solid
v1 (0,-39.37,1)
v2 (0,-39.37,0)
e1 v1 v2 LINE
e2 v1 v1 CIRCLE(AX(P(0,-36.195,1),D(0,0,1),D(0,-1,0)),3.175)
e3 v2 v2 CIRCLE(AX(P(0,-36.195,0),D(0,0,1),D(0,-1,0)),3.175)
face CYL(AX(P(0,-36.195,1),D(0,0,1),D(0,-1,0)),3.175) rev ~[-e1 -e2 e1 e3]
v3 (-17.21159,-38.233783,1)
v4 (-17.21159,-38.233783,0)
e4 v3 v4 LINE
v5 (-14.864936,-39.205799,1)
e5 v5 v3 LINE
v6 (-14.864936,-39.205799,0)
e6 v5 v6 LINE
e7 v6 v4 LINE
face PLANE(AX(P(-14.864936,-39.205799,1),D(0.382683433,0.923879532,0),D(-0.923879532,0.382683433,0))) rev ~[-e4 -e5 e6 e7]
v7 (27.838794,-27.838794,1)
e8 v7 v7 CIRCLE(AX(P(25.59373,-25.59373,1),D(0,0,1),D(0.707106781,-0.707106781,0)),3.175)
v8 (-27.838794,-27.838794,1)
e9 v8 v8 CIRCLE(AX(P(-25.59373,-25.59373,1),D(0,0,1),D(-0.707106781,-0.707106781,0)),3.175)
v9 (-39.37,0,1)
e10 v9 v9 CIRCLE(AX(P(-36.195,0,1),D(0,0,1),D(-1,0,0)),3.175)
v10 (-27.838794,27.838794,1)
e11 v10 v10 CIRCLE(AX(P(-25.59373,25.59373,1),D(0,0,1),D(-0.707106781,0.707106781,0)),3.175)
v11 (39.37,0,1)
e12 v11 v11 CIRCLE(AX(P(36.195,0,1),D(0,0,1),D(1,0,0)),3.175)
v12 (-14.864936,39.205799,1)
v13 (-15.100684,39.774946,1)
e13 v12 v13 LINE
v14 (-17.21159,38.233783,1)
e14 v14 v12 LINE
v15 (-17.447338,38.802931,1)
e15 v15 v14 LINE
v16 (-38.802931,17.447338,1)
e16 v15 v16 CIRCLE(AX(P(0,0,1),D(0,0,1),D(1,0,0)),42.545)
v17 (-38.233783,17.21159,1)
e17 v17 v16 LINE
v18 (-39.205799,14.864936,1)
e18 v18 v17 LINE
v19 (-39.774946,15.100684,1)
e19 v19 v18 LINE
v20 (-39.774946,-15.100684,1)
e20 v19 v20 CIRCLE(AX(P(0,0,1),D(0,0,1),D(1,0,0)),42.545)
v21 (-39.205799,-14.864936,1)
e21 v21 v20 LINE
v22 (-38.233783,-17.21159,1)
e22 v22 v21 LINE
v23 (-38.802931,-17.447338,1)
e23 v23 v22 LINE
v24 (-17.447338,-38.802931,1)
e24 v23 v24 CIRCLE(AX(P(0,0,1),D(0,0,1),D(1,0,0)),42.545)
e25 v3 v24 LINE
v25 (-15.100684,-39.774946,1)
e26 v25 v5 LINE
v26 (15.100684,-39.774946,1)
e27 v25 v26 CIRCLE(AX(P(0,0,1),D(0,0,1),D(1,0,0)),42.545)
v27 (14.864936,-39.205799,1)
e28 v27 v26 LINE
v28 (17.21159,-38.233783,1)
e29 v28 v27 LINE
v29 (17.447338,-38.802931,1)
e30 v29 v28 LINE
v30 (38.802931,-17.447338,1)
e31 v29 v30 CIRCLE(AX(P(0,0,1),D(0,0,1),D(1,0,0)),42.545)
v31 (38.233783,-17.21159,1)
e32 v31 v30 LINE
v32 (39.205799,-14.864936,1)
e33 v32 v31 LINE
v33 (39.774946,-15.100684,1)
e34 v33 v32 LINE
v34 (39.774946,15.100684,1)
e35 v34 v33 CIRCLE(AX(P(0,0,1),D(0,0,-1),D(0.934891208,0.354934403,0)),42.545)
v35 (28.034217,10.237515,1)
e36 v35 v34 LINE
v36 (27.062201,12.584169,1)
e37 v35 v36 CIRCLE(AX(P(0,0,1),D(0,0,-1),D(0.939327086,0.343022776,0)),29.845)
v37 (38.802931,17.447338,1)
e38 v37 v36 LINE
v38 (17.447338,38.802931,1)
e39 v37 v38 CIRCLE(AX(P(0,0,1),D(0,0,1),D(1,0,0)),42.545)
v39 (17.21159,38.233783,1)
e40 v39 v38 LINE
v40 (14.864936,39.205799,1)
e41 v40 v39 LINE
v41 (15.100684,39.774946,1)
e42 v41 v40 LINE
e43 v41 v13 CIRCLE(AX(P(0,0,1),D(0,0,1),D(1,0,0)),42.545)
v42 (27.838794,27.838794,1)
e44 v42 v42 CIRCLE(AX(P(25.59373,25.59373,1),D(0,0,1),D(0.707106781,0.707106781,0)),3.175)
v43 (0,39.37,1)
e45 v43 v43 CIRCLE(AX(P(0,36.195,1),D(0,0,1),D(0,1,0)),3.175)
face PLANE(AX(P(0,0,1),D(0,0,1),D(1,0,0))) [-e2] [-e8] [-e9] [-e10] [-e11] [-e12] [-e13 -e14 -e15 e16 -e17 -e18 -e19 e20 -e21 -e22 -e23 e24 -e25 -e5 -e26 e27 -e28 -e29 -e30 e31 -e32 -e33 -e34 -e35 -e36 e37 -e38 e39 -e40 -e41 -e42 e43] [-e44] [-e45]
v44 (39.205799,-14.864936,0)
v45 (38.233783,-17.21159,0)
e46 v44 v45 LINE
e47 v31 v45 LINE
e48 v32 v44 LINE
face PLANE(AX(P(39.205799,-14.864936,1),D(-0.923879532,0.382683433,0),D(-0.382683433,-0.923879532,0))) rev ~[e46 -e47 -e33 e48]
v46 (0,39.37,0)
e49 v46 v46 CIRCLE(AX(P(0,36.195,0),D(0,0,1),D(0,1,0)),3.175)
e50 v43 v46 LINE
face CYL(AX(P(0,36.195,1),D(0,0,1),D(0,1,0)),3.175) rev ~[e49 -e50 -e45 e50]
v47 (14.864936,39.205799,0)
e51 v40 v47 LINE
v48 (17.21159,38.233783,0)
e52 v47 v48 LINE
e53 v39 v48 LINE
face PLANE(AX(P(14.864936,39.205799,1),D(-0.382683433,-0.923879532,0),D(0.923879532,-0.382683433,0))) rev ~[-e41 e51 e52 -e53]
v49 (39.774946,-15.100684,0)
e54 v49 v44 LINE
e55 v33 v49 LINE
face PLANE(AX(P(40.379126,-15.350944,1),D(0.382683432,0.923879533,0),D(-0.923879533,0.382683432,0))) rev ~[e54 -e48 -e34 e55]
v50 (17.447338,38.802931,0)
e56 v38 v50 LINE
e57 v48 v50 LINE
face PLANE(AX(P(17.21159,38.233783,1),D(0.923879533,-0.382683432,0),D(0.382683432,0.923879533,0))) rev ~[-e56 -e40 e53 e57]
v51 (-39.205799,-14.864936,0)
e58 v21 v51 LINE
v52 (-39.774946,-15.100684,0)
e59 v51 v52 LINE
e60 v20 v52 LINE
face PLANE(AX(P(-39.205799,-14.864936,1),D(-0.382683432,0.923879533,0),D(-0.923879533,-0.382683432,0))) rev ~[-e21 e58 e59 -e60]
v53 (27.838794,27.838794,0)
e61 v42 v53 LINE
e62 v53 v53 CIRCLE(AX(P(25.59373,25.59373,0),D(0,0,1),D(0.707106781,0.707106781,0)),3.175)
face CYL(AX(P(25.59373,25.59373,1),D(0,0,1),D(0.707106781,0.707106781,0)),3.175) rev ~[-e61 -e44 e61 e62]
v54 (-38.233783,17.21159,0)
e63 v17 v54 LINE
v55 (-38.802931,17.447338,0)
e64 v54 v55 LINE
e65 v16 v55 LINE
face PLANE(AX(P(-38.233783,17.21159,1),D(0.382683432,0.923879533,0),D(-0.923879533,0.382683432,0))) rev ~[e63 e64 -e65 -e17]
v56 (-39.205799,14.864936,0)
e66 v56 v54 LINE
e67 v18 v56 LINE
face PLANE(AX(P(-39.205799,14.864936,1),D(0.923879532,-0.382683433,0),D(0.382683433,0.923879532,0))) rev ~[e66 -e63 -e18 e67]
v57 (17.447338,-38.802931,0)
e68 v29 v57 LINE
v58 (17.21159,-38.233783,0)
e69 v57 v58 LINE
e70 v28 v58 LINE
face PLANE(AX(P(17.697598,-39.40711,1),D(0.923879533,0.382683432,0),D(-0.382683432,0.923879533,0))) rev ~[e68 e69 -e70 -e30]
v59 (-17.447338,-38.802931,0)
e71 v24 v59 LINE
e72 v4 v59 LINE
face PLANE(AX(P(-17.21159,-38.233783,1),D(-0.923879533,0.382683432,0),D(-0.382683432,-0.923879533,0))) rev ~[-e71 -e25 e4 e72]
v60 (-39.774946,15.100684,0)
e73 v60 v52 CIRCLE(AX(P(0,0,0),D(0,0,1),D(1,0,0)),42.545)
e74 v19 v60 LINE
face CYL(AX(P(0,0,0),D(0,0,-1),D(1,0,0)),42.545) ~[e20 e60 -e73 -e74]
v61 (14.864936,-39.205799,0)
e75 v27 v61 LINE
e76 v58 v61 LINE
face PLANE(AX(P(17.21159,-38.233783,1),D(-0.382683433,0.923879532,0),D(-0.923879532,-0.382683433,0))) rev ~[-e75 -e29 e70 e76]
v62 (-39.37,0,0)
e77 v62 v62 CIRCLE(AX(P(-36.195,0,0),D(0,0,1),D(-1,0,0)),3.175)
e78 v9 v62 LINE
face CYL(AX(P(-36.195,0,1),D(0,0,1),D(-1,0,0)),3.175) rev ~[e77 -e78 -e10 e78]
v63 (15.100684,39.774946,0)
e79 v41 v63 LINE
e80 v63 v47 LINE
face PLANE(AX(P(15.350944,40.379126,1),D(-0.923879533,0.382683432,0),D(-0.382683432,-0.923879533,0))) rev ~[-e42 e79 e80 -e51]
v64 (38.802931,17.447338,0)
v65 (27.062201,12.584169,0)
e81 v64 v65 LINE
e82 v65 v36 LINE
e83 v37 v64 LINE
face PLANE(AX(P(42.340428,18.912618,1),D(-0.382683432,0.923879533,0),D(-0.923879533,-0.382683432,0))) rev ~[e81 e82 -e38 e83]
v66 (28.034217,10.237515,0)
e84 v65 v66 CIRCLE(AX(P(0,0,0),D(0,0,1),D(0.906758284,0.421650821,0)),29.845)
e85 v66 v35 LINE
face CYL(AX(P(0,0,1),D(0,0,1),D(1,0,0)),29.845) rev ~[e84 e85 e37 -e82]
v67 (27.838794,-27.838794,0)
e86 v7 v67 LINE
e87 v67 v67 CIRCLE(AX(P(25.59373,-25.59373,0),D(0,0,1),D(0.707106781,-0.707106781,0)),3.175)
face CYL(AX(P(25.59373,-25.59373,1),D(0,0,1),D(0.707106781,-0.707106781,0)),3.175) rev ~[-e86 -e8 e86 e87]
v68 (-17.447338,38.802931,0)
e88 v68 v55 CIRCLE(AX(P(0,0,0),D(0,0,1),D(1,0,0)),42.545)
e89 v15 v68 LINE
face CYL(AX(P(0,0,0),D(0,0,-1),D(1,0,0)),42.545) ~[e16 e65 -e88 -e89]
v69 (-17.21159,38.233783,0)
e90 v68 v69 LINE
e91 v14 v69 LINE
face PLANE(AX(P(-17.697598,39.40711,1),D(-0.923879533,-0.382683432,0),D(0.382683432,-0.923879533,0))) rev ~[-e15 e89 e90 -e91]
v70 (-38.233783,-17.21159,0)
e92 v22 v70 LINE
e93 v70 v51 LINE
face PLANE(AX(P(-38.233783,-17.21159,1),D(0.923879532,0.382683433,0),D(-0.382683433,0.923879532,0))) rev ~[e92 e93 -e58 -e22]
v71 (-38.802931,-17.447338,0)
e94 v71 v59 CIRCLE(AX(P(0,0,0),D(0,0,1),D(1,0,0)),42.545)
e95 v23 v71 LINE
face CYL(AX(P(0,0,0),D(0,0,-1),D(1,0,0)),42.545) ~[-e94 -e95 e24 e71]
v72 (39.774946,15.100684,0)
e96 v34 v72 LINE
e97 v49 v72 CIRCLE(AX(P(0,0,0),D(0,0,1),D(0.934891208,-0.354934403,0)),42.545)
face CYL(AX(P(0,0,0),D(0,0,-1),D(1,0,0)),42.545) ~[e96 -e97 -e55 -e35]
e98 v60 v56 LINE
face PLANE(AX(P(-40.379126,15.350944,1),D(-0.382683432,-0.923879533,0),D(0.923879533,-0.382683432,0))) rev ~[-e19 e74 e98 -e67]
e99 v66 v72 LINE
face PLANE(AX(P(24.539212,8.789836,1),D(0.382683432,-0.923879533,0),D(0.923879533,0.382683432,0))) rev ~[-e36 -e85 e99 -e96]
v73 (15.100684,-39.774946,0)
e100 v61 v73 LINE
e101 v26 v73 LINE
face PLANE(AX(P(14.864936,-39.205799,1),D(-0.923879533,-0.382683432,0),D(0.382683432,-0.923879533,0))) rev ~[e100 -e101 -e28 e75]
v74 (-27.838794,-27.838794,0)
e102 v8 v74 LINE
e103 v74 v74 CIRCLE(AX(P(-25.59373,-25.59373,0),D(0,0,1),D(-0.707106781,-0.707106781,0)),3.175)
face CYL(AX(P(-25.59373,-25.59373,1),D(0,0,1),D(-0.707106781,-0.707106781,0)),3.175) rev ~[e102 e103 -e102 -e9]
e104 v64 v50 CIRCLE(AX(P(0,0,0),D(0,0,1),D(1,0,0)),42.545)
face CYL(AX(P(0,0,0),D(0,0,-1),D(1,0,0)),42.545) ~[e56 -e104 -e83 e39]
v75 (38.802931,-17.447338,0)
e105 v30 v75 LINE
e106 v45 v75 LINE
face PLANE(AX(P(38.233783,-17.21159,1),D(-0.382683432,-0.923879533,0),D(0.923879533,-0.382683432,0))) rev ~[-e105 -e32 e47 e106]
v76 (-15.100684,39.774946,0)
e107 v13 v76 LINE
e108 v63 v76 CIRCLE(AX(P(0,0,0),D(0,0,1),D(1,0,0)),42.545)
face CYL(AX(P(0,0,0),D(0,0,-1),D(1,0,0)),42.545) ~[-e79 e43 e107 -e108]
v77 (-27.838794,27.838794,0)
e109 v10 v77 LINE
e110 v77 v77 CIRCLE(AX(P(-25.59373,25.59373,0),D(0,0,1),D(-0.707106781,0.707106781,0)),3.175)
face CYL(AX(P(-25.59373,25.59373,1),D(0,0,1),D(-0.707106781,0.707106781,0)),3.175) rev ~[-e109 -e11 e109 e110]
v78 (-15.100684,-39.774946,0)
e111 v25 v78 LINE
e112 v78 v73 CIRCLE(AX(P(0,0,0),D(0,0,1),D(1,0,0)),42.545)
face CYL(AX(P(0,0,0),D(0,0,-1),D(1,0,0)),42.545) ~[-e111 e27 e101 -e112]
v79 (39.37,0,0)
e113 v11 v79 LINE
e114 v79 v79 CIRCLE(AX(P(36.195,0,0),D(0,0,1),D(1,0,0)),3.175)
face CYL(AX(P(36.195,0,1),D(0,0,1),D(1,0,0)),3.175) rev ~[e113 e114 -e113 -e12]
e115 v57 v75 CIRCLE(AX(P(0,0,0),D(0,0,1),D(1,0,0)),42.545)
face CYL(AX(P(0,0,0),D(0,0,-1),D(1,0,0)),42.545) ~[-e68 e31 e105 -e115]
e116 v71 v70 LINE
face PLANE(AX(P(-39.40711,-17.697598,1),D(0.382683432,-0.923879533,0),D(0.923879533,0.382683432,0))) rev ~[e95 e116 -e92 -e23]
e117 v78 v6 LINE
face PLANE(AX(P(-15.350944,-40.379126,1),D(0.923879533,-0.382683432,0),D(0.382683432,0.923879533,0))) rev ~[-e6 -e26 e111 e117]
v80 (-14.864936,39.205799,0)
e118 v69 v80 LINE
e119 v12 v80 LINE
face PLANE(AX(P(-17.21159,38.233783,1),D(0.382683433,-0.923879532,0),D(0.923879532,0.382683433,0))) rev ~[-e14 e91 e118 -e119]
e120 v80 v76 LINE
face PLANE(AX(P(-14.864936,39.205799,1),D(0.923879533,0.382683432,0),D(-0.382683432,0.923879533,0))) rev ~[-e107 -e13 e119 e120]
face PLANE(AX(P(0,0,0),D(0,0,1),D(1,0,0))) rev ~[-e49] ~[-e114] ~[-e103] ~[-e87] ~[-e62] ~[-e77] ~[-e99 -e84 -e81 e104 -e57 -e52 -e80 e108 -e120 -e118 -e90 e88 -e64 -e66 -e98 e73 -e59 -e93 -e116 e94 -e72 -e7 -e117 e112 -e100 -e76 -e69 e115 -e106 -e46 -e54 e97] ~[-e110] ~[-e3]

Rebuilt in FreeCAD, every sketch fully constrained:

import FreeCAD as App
import Part
import Sketcher
from FreeCAD import Vector
Q = App.Units.Quantity


def add_polygon(sketch, points):
    """Adds a closed chain of lines whose ends are joined by coincident constraints."""
    first, n = sketch.GeometryCount, len(points)
    for a, b in zip(points, points[1:] + points[:1]):
        sketch.addGeometry(Part.LineSegment(App.Vector(*a, 0), App.Vector(*b, 0)), False)
    for i in range(n):
        sketch.addConstraint(Sketcher.Constraint("Coincident", first + i, 2, first + (i + 1) % n, 1))

doc = App.newDocument("Part")
body = doc.addObject("PartDesign::Body", "Body")

# Sketch on XY plane
sketch1 = body.newObject("Sketcher::SketchObject", "Sketch")
sketch1.AttachmentSupport = (doc.getObject("XY_Plane"), [""])
sketch1.MapMode = "FlatFace"
sketch1.addGeometry(Part.Circle(Vector(0, 0, 0), Vector(0, 0, 1), 42.545), False)
sketch1.addConstraint(Sketcher.Constraint("Coincident", 0, 3, -1, 1))
sketch1.addConstraint(Sketcher.Constraint("Diameter", 0, Q("3.35 in")))
pad1 = body.newObject("PartDesign::Pad", "Pad")
pad1.Profile = sketch1
pad1.Length = 1

# Sketch on XY plane
sketch2 = body.newObject("Sketcher::SketchObject", "Sketch001")
sketch2.AttachmentSupport = (doc.getObject("XY_Plane"), [""])
sketch2.MapMode = "FlatFace"
sketch2.AttachmentOffset = App.Placement(Vector(0, 0, 1), App.Rotation())
sketch2.addGeometry(Part.Circle(Vector(0, 0, 0), Vector(0, 0, 1), 29.845), False)
sketch2.addConstraint(Sketcher.Constraint("Coincident", 0, 3, -1, 1))
sketch2.addConstraint(Sketcher.Constraint("Diameter", 0, Q("2.35 in")))
pocket1 = body.newObject("PartDesign::Pocket", "Pocket")
pocket1.Profile = sketch2
pocket1.Type = "ThroughAll"

# Sketch on XY plane
sketch3 = body.newObject("Sketcher::SketchObject", "Sketch002")
sketch3.AttachmentSupport = (doc.getObject("XY_Plane"), [""])
sketch3.MapMode = "FlatFace"
sketch3.AttachmentOffset = App.Placement(Vector(0, 0, 1), App.Rotation())
sketch3.addGeometry(Part.Circle(Vector(36.195, 0, 0), Vector(0, 0, 1), 3.175), False)
sketch3.addConstraint(Sketcher.Constraint("PointOnObject", 0, 3, -1))
sketch3.addConstraint(Sketcher.Constraint("Diameter", 0, Q("0.25 in")))
sketch3.addConstraint(Sketcher.Constraint("DistanceX", -1, 1, 0, 3, Q("1.425 in")))
pocket2 = body.newObject("PartDesign::Pocket", "Pocket001")
pocket2.Profile = sketch3
pocket2.Type = "ThroughAll"
doc.recompute()

polarpattern = body.newObject("PartDesign::PolarPattern", "PolarPattern")
polarpattern.Originals = [pocket2]
polarpattern.Axis = (doc.getObject("Z_Axis"), [""])
polarpattern.Angle = 360
polarpattern.Occurrences = 8
body.Tip = polarpattern

# Sketch on XY plane
sketch4 = body.newObject("Sketcher::SketchObject", "Sketch003")
sketch4.AttachmentSupport = (doc.getObject("XY_Plane"), [""])
sketch4.MapMode = "FlatFace"
sketch4.AttachmentOffset = App.Placement(Vector(0, 0, 1), App.Rotation())
add_polygon(sketch4, [(42.340428, 18.912618), (23.567196, 11.13649), (24.539212, 8.789836), (43.312444, 16.565964)])  # lines 0-3
add_polygon(sketch4, [(17.697598, 39.40711), (15.350944, 40.379126), (14.864936, 39.205799), (17.21159, 38.233783)])  # lines 4-7
add_polygon(sketch4, [(-15.350944, 40.379126), (-17.697598, 39.40711), (-17.21159, 38.233783), (-14.864936, 39.205799)])  # lines 8-11
add_polygon(sketch4, [(-39.40711, 17.697598), (-40.379126, 15.350944), (-39.205799, 14.864936), (-38.233783, 17.21159)])  # lines 12-15
add_polygon(sketch4, [(-40.379126, -15.350944), (-39.40711, -17.697598), (-38.233783, -17.21159), (-39.205799, -14.864936)])  # lines 16-19
add_polygon(sketch4, [(-17.697598, -39.40711), (-15.350944, -40.379126), (-14.864936, -39.205799), (-17.21159, -38.233783)])  # lines 20-23
add_polygon(sketch4, [(15.350944, -40.379126), (17.697598, -39.40711), (17.21159, -38.233783), (14.864936, -39.205799)])  # lines 24-27
add_polygon(sketch4, [(39.40711, -17.697598), (40.379126, -15.350944), (39.205799, -14.864936), (38.233783, -17.21159)])  # lines 28-31
sketch4.addConstraint(Sketcher.Constraint("Symmetric", 4, 2, 20, 2, -1, 1))
sketch4.addConstraint(Sketcher.Constraint("Symmetric", 5, 2, 21, 2, -1, 1))
sketch4.addConstraint(Sketcher.Constraint("Symmetric", 6, 2, 22, 2, -1, 1))
sketch4.addConstraint(Sketcher.Constraint("Symmetric", 7, 2, 23, 2, -1, 1))
sketch4.addConstraint(Sketcher.Constraint("Symmetric", 8, 2, 24, 2, -1, 1))
sketch4.addConstraint(Sketcher.Constraint("Symmetric", 9, 2, 25, 2, -1, 1))
sketch4.addConstraint(Sketcher.Constraint("Symmetric", 10, 2, 26, 2, -1, 1))
sketch4.addConstraint(Sketcher.Constraint("Symmetric", 11, 2, 27, 2, -1, 1))
sketch4.addConstraint(Sketcher.Constraint("Symmetric", 12, 2, 28, 2, -1, 1))
sketch4.addConstraint(Sketcher.Constraint("Symmetric", 13, 2, 29, 2, -1, 1))
sketch4.addConstraint(Sketcher.Constraint("Symmetric", 14, 2, 30, 2, -1, 1))
sketch4.addConstraint(Sketcher.Constraint("Symmetric", 15, 2, 31, 2, -1, 1))
sketch4.addConstraint(Sketcher.Constraint("Symmetric", 7, 2, 8, 2, -2))
sketch4.addConstraint(Sketcher.Constraint("Symmetric", 6, 2, 9, 2, -2))
sketch4.addConstraint(Sketcher.Constraint("Symmetric", 5, 2, 10, 2, -2))
sketch4.addConstraint(Sketcher.Constraint("Symmetric", 4, 2, 11, 2, -2))
sketch4.addConstraint(Sketcher.Constraint("Symmetric", 19, 2, 28, 2, -2))
sketch4.addConstraint(Sketcher.Constraint("Symmetric", 18, 2, 29, 2, -2))
sketch4.addConstraint(Sketcher.Constraint("Symmetric", 17, 2, 30, 2, -2))
sketch4.addConstraint(Sketcher.Constraint("Symmetric", 16, 2, 31, 2, -2))
sketch4.addConstraint(Sketcher.Constraint("Perpendicular", 0, 1))
sketch4.addConstraint(Sketcher.Constraint("Perpendicular", 1, 2))
sketch4.addConstraint(Sketcher.Constraint("Perpendicular", 2, 3))
sketch4.addConstraint(Sketcher.Constraint("Perpendicular", 4, 5))
sketch4.addConstraint(Sketcher.Constraint("Perpendicular", 5, 6))
sketch4.addConstraint(Sketcher.Constraint("Perpendicular", 6, 7))
sketch4.addConstraint(Sketcher.Constraint("Perpendicular", 3, 8))
sketch4.addConstraint(Sketcher.Constraint("Parallel", 7, 12))
sketch4.addConstraint(Sketcher.Constraint("Perpendicular", 12, 13))
sketch4.addConstraint(Sketcher.Constraint("Perpendicular", 13, 14))
sketch4.addConstraint(Sketcher.Constraint("Perpendicular", 14, 15))
sketch4.addConstraint(Sketcher.Constraint("Equal", 3, 4))
sketch4.addConstraint(Sketcher.Constraint("Equal", 10, 12))
sketch4.addConstraint(Sketcher.Constraint("Equal", 11, 13))
sketch4.addConstraint(Sketcher.Constraint("Distance", 0, Q("0.8 in")))
sketch4.addConstraint(Sketcher.Constraint("Distance", 1, Q("0.1 in")))
sketch4.addConstraint(Sketcher.Constraint("Angle", 0, Q("-157.5 deg")))
sketch4.addConstraint(Sketcher.Constraint("Distance", 5, Q("0.05 in")))
sketch4.addConstraint(Sketcher.Constraint("DistanceY", -1, 1, 5, 2, 39.205799))
sketch4.addConstraint(Sketcher.Constraint("DistanceX", 13, 2, -1, 1, 39.205799))
sketch4.addConstraint(Sketcher.Constraint("DistanceX", 4, 2, 2, 2, 27.9615))
sketch4.addConstraint(Sketcher.Constraint("DistanceX", 13, 2, 8, 2, 21.508202))
sketch4.addConstraint(Sketcher.Constraint("DistanceY", 21, 2, 16, 2, 21.508202))
sketch4.addConstraint(Sketcher.Constraint("DistanceY", 29, 2, 2, 2, 31.430899))
pocket3 = body.newObject("PartDesign::Pocket", "Pocket002")
pocket3.Profile = sketch4
pocket3.Type = "ThroughAll"

doc.recompute()
